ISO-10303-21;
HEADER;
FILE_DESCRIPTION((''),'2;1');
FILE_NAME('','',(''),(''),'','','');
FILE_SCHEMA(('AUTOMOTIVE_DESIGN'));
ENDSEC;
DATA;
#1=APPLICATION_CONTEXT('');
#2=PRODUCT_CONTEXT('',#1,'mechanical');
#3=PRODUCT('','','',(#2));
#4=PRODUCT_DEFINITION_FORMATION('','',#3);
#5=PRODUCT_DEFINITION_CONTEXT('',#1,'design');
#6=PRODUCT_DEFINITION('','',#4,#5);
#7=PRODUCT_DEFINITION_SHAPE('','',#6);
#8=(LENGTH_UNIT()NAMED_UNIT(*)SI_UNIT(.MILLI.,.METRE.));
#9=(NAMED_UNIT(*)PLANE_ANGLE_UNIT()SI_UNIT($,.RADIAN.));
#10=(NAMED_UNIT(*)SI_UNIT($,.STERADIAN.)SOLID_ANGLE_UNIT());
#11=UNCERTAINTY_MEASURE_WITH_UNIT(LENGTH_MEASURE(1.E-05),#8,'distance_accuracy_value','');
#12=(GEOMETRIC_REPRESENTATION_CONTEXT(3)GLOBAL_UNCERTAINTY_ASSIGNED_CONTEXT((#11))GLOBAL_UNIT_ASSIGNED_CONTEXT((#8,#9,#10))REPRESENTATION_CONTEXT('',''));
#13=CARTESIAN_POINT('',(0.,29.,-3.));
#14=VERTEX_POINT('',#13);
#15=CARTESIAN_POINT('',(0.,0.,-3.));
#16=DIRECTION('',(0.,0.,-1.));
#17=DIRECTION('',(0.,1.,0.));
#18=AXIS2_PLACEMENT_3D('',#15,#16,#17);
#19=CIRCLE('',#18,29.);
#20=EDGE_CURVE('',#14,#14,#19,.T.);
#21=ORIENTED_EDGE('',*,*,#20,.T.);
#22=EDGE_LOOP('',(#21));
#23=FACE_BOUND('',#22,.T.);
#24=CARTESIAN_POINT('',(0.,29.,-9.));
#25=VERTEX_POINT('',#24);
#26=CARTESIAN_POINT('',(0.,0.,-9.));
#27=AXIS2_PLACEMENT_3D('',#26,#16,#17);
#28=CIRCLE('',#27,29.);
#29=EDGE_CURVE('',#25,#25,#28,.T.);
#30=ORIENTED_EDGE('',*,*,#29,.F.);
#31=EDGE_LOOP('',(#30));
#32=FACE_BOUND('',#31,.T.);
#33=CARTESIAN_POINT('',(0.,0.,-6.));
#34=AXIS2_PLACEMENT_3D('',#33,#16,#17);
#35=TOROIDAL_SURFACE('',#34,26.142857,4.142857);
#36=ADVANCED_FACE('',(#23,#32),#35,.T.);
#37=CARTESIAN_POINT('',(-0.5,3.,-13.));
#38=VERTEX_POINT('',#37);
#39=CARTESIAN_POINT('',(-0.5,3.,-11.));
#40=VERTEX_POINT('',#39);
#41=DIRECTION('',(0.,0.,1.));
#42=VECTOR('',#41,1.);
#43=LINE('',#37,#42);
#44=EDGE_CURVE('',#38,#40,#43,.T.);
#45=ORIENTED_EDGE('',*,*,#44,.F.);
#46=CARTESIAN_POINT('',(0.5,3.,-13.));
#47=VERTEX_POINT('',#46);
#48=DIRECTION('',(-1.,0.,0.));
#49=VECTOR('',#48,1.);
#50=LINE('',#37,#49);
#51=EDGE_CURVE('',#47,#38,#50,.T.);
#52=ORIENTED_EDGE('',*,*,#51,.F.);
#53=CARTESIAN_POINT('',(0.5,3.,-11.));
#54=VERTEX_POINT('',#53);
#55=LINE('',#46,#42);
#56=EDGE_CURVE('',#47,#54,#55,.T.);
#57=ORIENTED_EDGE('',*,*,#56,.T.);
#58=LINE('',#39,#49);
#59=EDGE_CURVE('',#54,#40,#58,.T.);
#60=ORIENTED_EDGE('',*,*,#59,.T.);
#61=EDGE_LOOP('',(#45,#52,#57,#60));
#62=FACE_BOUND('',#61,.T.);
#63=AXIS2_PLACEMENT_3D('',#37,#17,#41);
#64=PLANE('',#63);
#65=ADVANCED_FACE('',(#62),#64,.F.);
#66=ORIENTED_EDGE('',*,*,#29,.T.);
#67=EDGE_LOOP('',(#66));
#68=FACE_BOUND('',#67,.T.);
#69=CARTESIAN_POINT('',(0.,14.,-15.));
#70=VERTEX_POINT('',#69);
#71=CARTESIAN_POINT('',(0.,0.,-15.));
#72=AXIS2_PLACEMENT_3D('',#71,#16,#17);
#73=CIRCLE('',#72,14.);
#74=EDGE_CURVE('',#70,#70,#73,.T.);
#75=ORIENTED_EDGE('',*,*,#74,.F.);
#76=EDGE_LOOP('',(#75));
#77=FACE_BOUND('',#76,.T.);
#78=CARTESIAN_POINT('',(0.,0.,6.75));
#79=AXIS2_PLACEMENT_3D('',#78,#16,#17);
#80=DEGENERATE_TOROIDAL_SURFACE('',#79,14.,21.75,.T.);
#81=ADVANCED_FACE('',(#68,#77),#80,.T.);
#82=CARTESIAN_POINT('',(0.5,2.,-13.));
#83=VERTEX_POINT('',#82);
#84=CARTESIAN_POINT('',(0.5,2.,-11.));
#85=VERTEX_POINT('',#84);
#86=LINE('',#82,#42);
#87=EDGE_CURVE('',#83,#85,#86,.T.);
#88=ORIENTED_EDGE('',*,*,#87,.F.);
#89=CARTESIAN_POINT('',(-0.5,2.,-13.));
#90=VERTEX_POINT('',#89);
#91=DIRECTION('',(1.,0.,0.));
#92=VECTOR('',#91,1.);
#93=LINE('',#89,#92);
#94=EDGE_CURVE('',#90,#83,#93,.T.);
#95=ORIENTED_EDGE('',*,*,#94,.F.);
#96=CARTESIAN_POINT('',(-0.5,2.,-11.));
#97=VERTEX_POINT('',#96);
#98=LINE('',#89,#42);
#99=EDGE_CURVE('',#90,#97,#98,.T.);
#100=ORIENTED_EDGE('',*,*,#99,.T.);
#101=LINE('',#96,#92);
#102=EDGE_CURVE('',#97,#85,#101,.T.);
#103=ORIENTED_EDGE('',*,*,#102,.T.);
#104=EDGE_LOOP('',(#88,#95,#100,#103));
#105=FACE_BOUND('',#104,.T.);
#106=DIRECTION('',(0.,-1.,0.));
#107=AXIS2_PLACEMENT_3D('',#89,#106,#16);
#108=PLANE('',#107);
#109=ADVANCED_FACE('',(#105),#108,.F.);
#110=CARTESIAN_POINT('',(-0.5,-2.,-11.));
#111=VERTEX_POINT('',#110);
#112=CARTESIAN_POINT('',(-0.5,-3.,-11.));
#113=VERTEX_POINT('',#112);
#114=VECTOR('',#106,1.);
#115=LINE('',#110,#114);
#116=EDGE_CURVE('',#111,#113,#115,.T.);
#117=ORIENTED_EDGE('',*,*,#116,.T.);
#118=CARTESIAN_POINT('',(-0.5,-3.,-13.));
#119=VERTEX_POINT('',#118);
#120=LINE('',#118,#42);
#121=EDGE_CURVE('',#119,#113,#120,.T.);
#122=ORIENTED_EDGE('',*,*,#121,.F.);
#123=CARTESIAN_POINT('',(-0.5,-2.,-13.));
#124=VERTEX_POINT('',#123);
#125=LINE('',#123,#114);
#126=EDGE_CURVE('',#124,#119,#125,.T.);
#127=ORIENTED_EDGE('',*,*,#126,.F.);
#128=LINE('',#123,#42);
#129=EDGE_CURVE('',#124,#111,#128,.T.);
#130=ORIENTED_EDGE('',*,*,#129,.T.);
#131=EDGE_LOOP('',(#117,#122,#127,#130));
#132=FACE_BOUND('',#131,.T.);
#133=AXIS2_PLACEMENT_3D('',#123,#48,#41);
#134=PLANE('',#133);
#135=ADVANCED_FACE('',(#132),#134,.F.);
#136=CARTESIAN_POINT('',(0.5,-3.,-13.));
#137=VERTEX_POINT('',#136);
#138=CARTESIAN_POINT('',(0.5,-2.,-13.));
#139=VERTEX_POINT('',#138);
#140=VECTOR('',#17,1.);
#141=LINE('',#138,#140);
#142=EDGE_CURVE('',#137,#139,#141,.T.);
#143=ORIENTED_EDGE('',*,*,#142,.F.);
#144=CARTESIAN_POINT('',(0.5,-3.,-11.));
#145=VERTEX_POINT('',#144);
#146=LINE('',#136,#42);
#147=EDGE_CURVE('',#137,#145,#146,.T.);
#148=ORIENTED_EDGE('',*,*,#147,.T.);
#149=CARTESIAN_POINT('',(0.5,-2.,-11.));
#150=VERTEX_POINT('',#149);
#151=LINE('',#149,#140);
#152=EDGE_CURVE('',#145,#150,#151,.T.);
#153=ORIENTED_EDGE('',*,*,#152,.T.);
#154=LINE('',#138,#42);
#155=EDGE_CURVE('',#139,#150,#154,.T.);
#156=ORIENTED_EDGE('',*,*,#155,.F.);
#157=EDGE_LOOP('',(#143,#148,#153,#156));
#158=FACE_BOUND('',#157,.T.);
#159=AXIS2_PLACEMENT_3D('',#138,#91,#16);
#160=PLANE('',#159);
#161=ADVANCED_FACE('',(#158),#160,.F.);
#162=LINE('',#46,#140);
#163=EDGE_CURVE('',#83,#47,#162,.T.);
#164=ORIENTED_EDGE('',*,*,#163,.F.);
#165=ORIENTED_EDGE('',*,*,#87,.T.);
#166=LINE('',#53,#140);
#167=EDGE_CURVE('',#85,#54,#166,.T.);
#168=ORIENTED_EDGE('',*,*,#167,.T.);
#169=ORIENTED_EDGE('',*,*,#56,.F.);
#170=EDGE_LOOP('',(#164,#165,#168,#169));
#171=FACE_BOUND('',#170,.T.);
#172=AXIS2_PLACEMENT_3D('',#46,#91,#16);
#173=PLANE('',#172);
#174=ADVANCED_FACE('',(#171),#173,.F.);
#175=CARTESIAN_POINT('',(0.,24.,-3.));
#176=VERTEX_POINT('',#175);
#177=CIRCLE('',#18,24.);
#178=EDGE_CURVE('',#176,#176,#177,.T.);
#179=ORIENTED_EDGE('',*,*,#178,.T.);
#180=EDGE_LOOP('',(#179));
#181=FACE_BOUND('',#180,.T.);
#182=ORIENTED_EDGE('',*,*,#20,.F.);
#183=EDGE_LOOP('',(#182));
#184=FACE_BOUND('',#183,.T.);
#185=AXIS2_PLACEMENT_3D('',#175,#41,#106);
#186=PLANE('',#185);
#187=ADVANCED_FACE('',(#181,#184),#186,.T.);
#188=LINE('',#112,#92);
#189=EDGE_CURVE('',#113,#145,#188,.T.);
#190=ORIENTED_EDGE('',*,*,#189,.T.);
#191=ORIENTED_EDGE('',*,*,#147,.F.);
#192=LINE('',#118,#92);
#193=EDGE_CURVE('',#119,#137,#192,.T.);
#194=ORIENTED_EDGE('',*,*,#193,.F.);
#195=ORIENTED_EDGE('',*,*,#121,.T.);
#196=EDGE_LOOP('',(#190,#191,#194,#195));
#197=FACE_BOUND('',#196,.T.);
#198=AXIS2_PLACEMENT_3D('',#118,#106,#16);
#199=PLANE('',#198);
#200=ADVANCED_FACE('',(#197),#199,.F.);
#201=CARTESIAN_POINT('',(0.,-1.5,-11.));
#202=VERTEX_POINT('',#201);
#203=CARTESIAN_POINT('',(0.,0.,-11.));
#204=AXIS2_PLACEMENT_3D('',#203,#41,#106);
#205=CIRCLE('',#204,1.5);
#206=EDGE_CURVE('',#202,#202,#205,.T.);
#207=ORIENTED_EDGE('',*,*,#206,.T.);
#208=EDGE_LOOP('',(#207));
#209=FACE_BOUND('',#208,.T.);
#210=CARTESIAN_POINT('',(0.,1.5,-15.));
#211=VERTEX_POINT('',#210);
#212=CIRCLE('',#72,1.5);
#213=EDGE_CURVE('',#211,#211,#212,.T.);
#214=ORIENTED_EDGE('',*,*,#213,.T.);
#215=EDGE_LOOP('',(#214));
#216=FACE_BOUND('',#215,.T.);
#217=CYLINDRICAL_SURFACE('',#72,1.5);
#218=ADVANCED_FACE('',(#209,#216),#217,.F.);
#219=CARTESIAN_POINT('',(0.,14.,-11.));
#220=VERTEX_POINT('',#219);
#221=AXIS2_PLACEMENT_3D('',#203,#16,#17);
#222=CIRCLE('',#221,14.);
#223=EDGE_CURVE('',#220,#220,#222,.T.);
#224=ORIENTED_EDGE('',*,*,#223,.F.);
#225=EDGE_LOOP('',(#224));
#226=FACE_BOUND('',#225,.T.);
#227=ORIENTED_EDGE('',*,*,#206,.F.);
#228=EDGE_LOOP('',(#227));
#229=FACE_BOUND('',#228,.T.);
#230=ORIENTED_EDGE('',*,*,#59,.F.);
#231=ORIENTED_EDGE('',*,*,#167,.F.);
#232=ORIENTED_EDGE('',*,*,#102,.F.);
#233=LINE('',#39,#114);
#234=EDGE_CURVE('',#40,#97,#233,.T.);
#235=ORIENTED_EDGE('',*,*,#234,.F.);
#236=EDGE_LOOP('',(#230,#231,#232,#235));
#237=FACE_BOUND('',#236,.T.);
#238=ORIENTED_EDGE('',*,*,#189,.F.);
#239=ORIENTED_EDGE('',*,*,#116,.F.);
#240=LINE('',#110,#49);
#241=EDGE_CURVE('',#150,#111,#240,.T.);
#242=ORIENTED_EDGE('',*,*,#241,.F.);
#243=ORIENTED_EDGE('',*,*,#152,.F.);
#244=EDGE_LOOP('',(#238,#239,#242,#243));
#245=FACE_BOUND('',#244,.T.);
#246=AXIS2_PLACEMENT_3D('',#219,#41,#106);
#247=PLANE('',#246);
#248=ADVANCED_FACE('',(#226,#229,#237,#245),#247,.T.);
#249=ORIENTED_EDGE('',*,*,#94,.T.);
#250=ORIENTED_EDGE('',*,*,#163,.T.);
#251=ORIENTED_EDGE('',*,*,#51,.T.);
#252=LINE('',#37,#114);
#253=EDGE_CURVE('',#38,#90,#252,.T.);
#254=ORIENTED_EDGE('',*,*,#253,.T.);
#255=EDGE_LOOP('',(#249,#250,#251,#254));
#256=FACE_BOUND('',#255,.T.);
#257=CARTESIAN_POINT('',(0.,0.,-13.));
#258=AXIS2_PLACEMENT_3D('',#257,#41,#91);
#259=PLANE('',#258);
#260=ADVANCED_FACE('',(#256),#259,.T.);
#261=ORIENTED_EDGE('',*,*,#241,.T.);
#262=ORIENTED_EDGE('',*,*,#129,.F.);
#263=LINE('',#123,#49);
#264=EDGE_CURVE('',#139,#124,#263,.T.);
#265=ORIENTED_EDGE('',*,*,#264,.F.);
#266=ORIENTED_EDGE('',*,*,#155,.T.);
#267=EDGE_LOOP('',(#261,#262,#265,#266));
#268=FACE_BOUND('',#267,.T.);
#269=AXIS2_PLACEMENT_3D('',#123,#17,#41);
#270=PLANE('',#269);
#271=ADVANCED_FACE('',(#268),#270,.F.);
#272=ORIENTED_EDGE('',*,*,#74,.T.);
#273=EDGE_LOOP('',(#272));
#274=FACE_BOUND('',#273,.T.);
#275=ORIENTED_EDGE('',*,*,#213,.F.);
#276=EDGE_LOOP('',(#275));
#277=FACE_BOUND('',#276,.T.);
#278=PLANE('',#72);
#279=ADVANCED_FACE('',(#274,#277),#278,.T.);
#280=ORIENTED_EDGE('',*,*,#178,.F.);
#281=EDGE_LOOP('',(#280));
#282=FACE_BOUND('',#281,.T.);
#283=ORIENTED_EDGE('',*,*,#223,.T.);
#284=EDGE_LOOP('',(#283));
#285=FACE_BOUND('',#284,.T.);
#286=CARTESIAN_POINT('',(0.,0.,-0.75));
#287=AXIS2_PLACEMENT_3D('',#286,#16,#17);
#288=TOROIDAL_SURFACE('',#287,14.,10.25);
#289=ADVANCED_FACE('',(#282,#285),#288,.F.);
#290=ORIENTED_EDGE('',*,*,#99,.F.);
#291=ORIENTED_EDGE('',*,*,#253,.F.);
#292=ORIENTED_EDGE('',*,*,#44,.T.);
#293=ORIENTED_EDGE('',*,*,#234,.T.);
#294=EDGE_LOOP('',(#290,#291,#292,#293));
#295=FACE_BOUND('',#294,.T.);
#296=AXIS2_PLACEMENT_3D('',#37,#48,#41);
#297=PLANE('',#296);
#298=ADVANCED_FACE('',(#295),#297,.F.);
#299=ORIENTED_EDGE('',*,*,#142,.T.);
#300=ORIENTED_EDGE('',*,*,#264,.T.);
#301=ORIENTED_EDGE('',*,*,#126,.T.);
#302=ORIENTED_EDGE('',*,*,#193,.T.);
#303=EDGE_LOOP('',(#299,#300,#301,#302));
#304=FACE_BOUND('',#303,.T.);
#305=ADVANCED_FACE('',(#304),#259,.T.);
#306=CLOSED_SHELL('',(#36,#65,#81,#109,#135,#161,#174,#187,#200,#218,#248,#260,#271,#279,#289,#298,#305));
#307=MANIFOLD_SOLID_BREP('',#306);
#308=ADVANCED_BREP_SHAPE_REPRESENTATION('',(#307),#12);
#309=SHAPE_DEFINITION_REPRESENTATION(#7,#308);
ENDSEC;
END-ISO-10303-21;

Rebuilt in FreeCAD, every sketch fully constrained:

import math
import FreeCAD as App
import Part
import Sketcher
Q = App.Units.Quantity


def add_polygon(sketch, points):
    """Adds a closed chain of lines whose ends are joined by coincident constraints."""
    first, n = sketch.GeometryCount, len(points)
    for a, b in zip(points, points[1:] + points[:1]):
        sketch.addGeometry(Part.LineSegment(App.Vector(*a, 0), App.Vector(*b, 0)), False)
    for i in range(n):
        sketch.addConstraint(Sketcher.Constraint("Coincident", first + i, 2, first + (i + 1) % n, 1))

doc = App.newDocument("Part")
body = doc.addObject("PartDesign::Body", "Body")

# Sketch on YZ plane
sketch1 = body.newObject("Sketcher::SketchObject", "Sketch")
sketch1.AttachmentSupport = (doc.getObject("YZ_Plane"), [""])
sketch1.MapMode = "FlatFace"
sketch1.addGeometry([
    Part.LineSegment(App.Vector(0, -15, 0), App.Vector(14, -15, 0)),  # 0
    Part.ArcOfCircle(Part.Circle(App.Vector(14, 6.7, 0), App.Vector(0, 0, 1), 21.7), math.radians(-90), math.radians(-46)),  # 1
    Part.ArcOfCircle(Part.Circle(App.Vector(26.1, -6, 0), App.Vector(0, 0, 1), 4.1), math.radians(-46), math.radians(46)),  # 2
    Part.LineSegment(App.Vector(29, -3, 0), App.Vector(24, -3, 0)),  # 3
    Part.ArcOfCircle(Part.Circle(App.Vector(14, -0.8, 0), App.Vector(0, 0, 1), 10.2), math.radians(-90), math.radians(-13)),  # 4
    Part.LineSegment(App.Vector(14, -11, 0), App.Vector(0, -11, 0)),  # 5
    Part.LineSegment(App.Vector(0, -11, 0), App.Vector(0, -15, 0)),  # 6
], False)
sketch1.addConstraint([
    Sketcher.Constraint("Tangent", 0, 2, 1, 1),
    Sketcher.Constraint("Tangent", 1, 2, 2, 1),
    Sketcher.Constraint("Coincident", 2, 2, 3, 1),
    Sketcher.Constraint("Coincident", 3, 2, 4, 2),
    Sketcher.Constraint("Tangent", 4, 1, 5, 1),
    Sketcher.Constraint("Coincident", 5, 2, 6, 1),
    Sketcher.Constraint("Coincident", 6, 2, 0, 1),
    Sketcher.Constraint("Horizontal", 0),
    Sketcher.Constraint("Horizontal", 3),
    Sketcher.Constraint("Horizontal", 5),
    Sketcher.Constraint("Vertical", 6),
    Sketcher.Constraint("PointOnObject", 5, 2, -2),
    Sketcher.Constraint("Vertical", 1, 3, 4, 3),
    Sketcher.Constraint("Vertical", 1, 2, 2, 2),
    Sketcher.Constraint("DistanceX", 0, 1, 0, 2, Q("14 mm")),
    Sketcher.Constraint("DistanceX", 3, 2, 3, 1, Q("5 mm")),
    Sketcher.Constraint("DistanceY", 6, 2, 6, 1, Q("4 mm")),
    Sketcher.Constraint("Radius", 1, Q("21.75 mm")),
    Sketcher.Constraint("Radius", 4, Q("10.25 mm")),
    Sketcher.Constraint("DistanceY", 2, 3, -1, 1, Q("6 mm")),
    Sketcher.Constraint("DistanceY", 0, 2, -1, 1, Q("15 mm")),
])
revolution = body.newObject("PartDesign::Revolution", "Revolution")
revolution.Profile = sketch1
revolution.ReferenceAxis = (sketch1, ["V_Axis"])
revolution.Angle = 360

# Sketch on XY plane
sketch2 = body.newObject("Sketcher::SketchObject", "Sketch001")
sketch2.AttachmentSupport = (doc.getObject("XY_Plane"), [""])
sketch2.MapMode = "FlatFace"
sketch2.AttachmentOffset = App.Placement(App.Vector(0, 0, -15), App.Rotation())
sketch2.addGeometry(Part.Circle(App.Vector(0, 0, 0), App.Vector(0, 0, 1), 1.5), False)
sketch2.addConstraint([
    Sketcher.Constraint("Coincident", 0, 3, -1, 1),
    Sketcher.Constraint("Diameter", 0, Q("3 mm")),
])
doc.recompute()
hole = body.newObject("PartDesign::Hole", "Hole")
hole.Profile = sketch2
hole.ThreadType = "None"
hole.Diameter = 3
hole.DepthType = "ThroughAll"
hole.Reversed = True

# Sketch on XY plane
sketch3 = body.newObject("Sketcher::SketchObject", "Sketch002")
sketch3.AttachmentSupport = (doc.getObject("XY_Plane"), [""])
sketch3.MapMode = "FlatFace"
sketch3.addGeometry(Part.Circle(App.Vector(0, 0, 0), App.Vector(0, 0, 1), 1.5), False)
sketch3.addConstraint([
    Sketcher.Constraint("Coincident", 0, 3, -1, 1),
    Sketcher.Constraint("Diameter", 0, Q("3 mm")),
])
doc.recompute()
hole2 = body.newObject("PartDesign::Hole", "Hole001")
hole2.Profile = sketch3
hole2.ThreadType = "None"
hole2.Diameter = 3
hole2.DepthType = "ThroughAll"
hole2.Reversed = True

# Sketch on XY plane
sketch4 = body.newObject("Sketcher::SketchObject", "Sketch003")
sketch4.AttachmentSupport = (doc.getObject("XY_Plane"), [""])
sketch4.MapMode = "FlatFace"
sketch4.AttachmentOffset = App.Placement(App.Vector(0, 0, -11), App.Rotation())
add_polygon(sketch4, [(-0.5, 3), (-0.5, 2), (0.5, 2), (0.5, 3)])  # lines 0-3
add_polygon(sketch4, [(-0.5, -2), (-0.5, -3), (0.5, -3), (0.5, -2)])  # lines 4-7
sketch4.addConstraint([
    Sketcher.Constraint("Vertical", 0),
    Sketcher.Constraint("Horizontal", 1),
    Sketcher.Constraint("Vertical", 2),
    Sketcher.Constraint("Horizontal", 3),
    Sketcher.Constraint("Vertical", 4),
    Sketcher.Constraint("Horizontal", 5),
    Sketcher.Constraint("Vertical", 6),
    Sketcher.Constraint("Horizontal", 7),
    Sketcher.Constraint("Symmetric", 2, 2, 4, 2, -1, 1),
    Sketcher.Constraint("Symmetric", 0, 2, 6, 2, -1, 1),
    Sketcher.Constraint("Vertical", 3, 2, 4, 2),
    Sketcher.Constraint("Equal", 7, 0),
    Sketcher.Constraint("DistanceX", 1, 1, 1, 2, Q("1 mm")),
    Sketcher.Constraint("DistanceY", -1, 1, 0, 2, Q("2 mm")),
])
pocket1 = body.newObject("PartDesign::Pocket", "Pocket")
pocket1.Profile = sketch4
pocket1.Length = 2

doc.recompute()
